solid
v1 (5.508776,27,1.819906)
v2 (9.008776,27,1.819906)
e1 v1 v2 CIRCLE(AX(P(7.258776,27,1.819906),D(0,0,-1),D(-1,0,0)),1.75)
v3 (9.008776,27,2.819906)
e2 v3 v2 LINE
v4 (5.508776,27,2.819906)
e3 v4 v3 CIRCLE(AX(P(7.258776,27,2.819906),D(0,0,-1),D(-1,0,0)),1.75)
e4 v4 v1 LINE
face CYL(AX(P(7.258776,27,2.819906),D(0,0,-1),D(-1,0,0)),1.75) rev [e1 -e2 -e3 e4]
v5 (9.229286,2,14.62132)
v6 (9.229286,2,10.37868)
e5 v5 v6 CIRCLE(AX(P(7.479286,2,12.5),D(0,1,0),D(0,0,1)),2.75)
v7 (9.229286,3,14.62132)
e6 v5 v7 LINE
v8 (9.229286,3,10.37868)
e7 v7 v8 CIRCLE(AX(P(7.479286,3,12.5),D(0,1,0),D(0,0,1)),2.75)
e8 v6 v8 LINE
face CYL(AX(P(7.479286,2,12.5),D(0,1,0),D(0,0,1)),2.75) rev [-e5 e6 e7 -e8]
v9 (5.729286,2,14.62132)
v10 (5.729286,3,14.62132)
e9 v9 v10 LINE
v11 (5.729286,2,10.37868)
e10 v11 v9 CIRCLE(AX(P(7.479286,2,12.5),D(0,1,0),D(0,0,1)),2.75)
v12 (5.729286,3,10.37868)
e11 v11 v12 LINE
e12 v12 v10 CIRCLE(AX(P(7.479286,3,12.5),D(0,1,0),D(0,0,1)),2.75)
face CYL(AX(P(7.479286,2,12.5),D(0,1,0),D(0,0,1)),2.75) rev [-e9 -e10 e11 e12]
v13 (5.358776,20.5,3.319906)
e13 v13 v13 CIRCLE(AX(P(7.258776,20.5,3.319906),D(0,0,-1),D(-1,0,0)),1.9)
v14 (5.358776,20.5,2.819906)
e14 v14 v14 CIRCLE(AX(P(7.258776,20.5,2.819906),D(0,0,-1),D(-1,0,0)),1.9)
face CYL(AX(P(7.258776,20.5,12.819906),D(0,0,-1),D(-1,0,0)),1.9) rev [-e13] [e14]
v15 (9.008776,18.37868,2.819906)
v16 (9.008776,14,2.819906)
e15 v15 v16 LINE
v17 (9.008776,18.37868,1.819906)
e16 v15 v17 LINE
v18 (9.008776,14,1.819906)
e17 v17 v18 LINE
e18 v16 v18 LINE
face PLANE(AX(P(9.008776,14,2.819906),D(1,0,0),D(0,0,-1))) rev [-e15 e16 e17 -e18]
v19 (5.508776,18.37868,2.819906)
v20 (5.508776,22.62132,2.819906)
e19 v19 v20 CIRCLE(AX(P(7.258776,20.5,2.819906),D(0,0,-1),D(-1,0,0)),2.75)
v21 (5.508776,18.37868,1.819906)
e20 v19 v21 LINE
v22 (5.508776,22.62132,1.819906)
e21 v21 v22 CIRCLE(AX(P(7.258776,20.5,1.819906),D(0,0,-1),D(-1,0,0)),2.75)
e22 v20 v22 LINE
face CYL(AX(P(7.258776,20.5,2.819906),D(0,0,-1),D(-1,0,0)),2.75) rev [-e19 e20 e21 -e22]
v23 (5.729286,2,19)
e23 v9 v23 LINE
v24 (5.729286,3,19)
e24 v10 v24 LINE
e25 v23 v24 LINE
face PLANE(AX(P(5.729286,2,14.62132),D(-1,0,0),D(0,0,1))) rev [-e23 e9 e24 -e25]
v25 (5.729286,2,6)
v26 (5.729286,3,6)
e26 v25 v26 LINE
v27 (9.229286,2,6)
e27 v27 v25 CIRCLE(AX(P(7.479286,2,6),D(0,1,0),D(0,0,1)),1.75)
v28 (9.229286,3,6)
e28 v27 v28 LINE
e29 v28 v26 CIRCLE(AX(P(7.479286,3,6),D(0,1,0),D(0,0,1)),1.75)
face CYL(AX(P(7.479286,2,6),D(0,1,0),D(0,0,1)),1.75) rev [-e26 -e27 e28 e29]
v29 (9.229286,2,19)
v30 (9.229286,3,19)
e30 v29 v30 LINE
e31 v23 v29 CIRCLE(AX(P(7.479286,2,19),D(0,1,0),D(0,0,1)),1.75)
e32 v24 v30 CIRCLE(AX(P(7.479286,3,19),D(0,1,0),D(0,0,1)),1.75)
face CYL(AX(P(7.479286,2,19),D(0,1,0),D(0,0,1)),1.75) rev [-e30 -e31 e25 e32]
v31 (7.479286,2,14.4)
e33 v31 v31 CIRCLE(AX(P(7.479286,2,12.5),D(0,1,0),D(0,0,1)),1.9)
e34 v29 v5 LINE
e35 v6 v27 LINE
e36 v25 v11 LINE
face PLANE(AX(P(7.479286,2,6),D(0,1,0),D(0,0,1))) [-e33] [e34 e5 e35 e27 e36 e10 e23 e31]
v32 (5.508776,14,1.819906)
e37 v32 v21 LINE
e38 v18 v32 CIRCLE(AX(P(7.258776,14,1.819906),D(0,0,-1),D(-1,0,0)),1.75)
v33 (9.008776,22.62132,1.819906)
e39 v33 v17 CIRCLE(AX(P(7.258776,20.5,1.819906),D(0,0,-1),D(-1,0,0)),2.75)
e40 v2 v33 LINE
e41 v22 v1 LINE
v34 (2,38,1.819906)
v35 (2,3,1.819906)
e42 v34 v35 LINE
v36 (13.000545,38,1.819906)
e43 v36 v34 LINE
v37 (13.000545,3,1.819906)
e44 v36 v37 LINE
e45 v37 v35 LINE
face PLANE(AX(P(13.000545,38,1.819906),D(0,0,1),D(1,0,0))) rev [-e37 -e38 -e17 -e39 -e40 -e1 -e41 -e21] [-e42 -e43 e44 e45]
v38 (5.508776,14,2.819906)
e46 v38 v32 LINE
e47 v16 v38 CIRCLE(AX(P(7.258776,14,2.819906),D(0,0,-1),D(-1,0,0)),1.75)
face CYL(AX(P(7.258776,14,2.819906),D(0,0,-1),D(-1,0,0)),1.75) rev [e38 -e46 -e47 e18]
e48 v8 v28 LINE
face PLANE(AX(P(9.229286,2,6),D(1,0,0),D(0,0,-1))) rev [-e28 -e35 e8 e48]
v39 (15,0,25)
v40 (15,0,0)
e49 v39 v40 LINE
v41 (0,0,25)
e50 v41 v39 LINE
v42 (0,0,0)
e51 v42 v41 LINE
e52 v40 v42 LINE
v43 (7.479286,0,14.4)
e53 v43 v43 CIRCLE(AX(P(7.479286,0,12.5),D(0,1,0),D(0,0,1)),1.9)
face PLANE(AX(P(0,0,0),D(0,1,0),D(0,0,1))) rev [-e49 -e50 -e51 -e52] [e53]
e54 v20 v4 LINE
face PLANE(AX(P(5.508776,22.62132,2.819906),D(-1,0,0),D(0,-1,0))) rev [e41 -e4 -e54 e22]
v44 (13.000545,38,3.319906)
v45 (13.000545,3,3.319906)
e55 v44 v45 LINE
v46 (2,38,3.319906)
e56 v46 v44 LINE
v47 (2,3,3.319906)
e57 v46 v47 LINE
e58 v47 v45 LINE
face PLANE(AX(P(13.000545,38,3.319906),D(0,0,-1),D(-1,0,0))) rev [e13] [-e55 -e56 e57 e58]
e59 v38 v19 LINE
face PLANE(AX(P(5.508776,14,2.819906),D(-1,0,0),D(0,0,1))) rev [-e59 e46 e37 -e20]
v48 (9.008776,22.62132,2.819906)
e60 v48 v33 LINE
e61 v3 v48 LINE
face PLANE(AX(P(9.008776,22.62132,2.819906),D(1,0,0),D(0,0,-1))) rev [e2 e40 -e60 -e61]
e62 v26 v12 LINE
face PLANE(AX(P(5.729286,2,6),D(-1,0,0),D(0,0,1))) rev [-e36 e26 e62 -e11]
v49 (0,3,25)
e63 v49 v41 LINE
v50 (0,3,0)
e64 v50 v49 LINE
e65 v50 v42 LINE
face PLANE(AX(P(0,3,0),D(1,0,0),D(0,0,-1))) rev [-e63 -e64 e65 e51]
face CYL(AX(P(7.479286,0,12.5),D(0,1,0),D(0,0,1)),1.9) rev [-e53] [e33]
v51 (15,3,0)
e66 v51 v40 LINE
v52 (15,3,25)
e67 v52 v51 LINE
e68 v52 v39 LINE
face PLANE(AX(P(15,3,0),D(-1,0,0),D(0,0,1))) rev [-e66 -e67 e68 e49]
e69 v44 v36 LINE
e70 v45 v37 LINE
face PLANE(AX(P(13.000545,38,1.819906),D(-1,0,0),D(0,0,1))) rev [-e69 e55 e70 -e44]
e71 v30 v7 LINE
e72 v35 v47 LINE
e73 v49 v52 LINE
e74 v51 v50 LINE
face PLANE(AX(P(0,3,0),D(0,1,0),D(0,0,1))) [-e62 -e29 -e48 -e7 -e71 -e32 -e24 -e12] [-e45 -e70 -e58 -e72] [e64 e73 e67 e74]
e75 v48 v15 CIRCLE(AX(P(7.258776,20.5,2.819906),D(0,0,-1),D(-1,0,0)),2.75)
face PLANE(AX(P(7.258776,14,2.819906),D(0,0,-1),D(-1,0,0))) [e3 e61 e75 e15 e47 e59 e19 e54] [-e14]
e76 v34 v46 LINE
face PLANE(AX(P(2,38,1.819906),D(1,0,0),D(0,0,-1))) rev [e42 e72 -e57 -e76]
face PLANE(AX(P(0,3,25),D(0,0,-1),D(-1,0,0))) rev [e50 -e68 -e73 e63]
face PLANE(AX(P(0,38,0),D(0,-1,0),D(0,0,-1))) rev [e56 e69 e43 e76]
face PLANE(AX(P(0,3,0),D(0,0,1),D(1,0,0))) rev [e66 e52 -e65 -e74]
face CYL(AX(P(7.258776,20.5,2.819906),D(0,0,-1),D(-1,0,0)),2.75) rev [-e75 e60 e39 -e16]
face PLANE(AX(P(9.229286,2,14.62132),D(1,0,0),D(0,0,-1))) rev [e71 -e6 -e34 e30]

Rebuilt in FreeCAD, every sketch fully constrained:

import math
import FreeCAD as App
import Part
import Sketcher
from FreeCAD import Vector

doc = App.newDocument("Part")
body = doc.addObject("PartDesign::Body", "Body")

sketch1 = body.newObject("Sketcher::SketchObject", "Sketch")
sketch1.AttachmentSupport = (doc.getObject("XZ_Plane"), [""])
sketch1.MapMode = "FlatFace"
sketch1.addGeometry([
    Part.LineSegment(Vector(0, 0, 0), Vector(0, 25, 0)),
    Part.LineSegment(Vector(0, 25, 0), Vector(15, 25, 0)),
    Part.LineSegment(Vector(15, 25, 0), Vector(15, 0, 0)),
    Part.LineSegment(Vector(15, 0, 0), Vector(0, 0, 0)),
], False)
sketch1.addConstraint([
    Sketcher.Constraint("Coincident", 0, 2, 1, 1),
    Sketcher.Constraint("Coincident", 1, 2, 2, 1),
    Sketcher.Constraint("Coincident", 2, 2, 3, 1),
    Sketcher.Constraint("Coincident", 3, 2, 0, 1),
    Sketcher.Constraint("Vertical", 0),
    Sketcher.Constraint("Horizontal", 1),
    Sketcher.Constraint("Vertical", 2),
    Sketcher.Constraint("Horizontal", 3),
    Sketcher.Constraint("Coincident", 3, 2, -1, 1),
    Sketcher.Constraint("DistanceX", 1, 1, 1, 2, 15.0),
    Sketcher.Constraint("DistanceY", 0, 1, 0, 2, 25.0),
])
pad1 = body.newObject("PartDesign::Pad", "Pad")
pad1.Profile = sketch1
pad1.Length = 3
pad1.Reversed = True

sketch2 = body.newObject("Sketcher::SketchObject", "Sketch001")
sketch2.AttachmentSupport = (doc.getObject("XZ_Plane"), [""])
sketch2.MapMode = "FlatFace"
sketch2.AttachmentOffset = App.Placement(Vector(0, 0, -3), App.Rotation())
sketch2.addGeometry([
    Part.LineSegment(Vector(9.2, 10.4, 0), Vector(9.2, 6, 0)),
    Part.ArcOfCircle(Part.Circle(Vector(7.5, 6, 0), Vector(0, 0, 1), 1.8), math.radians(180), math.radians(360)),
    Part.LineSegment(Vector(5.7, 6, 0), Vector(5.7, 10.4, 0)),
    Part.ArcOfCircle(Part.Circle(Vector(7.5, 12.5, 0), Vector(0, 0, 1), 2.8), math.radians(130), math.radians(230)),
    Part.LineSegment(Vector(5.7, 14.6, 0), Vector(5.7, 19, 0)),
    Part.ArcOfCircle(Part.Circle(Vector(7.5, 19, 0), Vector(0, 0, 1), 1.8), math.radians(0), math.radians(180)),
    Part.LineSegment(Vector(9.2, 19, 0), Vector(9.2, 14.6, 0)),
    Part.ArcOfCircle(Part.Circle(Vector(7.5, 12.5, 0), Vector(0, 0, 1), 2.8), math.radians(-50), math.radians(50)),
], False)
sketch2.addConstraint([
    Sketcher.Constraint("Tangent", 0, 2, 1, 2),
    Sketcher.Constraint("Tangent", 1, 1, 2, 1),
    Sketcher.Constraint("Coincident", 2, 2, 3, 2),
    Sketcher.Constraint("Coincident", 3, 1, 4, 1),
    Sketcher.Constraint("Tangent", 4, 2, 5, 2),
    Sketcher.Constraint("Tangent", 5, 1, 6, 1),
    Sketcher.Constraint("Coincident", 6, 2, 7, 2),
    Sketcher.Constraint("Coincident", 7, 1, 0, 1),
    Sketcher.Constraint("Vertical", 0),
    Sketcher.Constraint("Vertical", 2),
    Sketcher.Constraint("Vertical", 4),
    Sketcher.Constraint("Vertical", 6),
    Sketcher.Constraint("Coincident", 7, 3, 3, 3),
    Sketcher.Constraint("Equal", 1, 5),
    Sketcher.Constraint("Equal", 3, 7),
    Sketcher.Constraint("Horizontal", 3, 1, 6, 2),
    Sketcher.Constraint("Horizontal", 2, 2, 7, 1),
    Sketcher.Constraint("Equal", 2, 4),
    Sketcher.Constraint("Radius", 1, 1.75),
    Sketcher.Constraint("Radius", 3, 2.75),
    Sketcher.Constraint("DistanceY", -1, 1, 1, 3, 6.0),
    Sketcher.Constraint("DistanceY", -1, 1, 5, 3, 19.0),
    Sketcher.Constraint("DistanceX", -1, 1, 1, 3, 7.479286),
])
pocket1 = body.newObject("PartDesign::Pocket", "Pocket")
pocket1.Profile = sketch2
pocket1.Length = 1
pocket1.Reversed = True

sketch3 = body.newObject("Sketcher::SketchObject", "Sketch002")
sketch3.AttachmentSupport = (doc.getObject("XZ_Plane"), [""])
sketch3.MapMode = "FlatFace"
sketch3.AttachmentOffset = App.Placement(Vector(0, 0, -2), App.Rotation())
sketch3.addGeometry(Part.Circle(Vector(7.5, 12.5, 0), Vector(0, 0, 1), 1.9), False)
sketch3.addConstraint([
    Sketcher.Constraint("Diameter", 0, 3.8),
    Sketcher.Constraint("DistanceY", -1, 1, 0, 3, 12.5),
    Sketcher.Constraint("DistanceX", -1, 1, 0, 3, 7.479286),
])
pocket2 = body.newObject("PartDesign::Pocket", "Pocket001")
pocket2.Profile = sketch3
pocket2.Type = "ThroughAll"
pocket2.Reversed = True

sketch4 = body.newObject("Sketcher::SketchObject", "Sketch003")
sketch4.AttachmentSupport = (doc.getObject("XZ_Plane"), [""])
sketch4.MapMode = "FlatFace"
sketch4.AttachmentOffset = App.Placement(Vector(0, 0, -3), App.Rotation())
sketch4.addGeometry([
    Part.LineSegment(Vector(2, 1.8, 0), Vector(2, 3.3, 0)),
    Part.LineSegment(Vector(2, 3.3, 0), Vector(13, 3.3, 0)),
    Part.LineSegment(Vector(13, 3.3, 0), Vector(13, 1.8, 0)),
    Part.LineSegment(Vector(13, 1.8, 0), Vector(2, 1.8, 0)),
], False)
sketch4.addConstraint([
    Sketcher.Constraint("Coincident", 0, 2, 1, 1),
    Sketcher.Constraint("Coincident", 1, 2, 2, 1),
    Sketcher.Constraint("Coincident", 2, 2, 3, 1),
    Sketcher.Constraint("Coincident", 3, 2, 0, 1),
    Sketcher.Constraint("Vertical", 0),
    Sketcher.Constraint("Horizontal", 1),
    Sketcher.Constraint("Vertical", 2),
    Sketcher.Constraint("Horizontal", 3),
    Sketcher.Constraint("DistanceY", 0, 1, 0, 2, 1.5),
    Sketcher.Constraint("DistanceX", -1, 1, 0, 2, 2.0),
    Sketcher.Constraint("DistanceX", 1, 1, 1, 2, 11.000545),
    Sketcher.Constraint("DistanceY", -1, 1, 0, 2, 3.319906),
])
pad2 = body.newObject("PartDesign::Pad", "Pad001")
pad2.Profile = sketch4
pad2.Length = 35
pad2.Reversed = True

sketch5 = body.newObject("Sketcher::SketchObject", "Sketch004")
sketch5.AttachmentSupport = (doc.getObject("XY_Plane"), [""])
sketch5.MapMode = "FlatFace"
sketch5.AttachmentOffset = App.Placement(Vector(0, 0, 1.819906), App.Rotation())
sketch5.addGeometry([
    Part.LineSegment(Vector(9, 18.4, 0), Vector(9, 14, 0)),
    Part.ArcOfCircle(Part.Circle(Vector(7.3, 14, 0), Vector(0, 0, 1), 1.8), math.radians(180), math.radians(360)),
    Part.LineSegment(Vector(5.5, 14, 0), Vector(5.5, 18.4, 0)),
    Part.ArcOfCircle(Part.Circle(Vector(7.3, 20.5, 0), Vector(0, 0, 1), 2.8), math.radians(130), math.radians(230)),
    Part.LineSegment(Vector(5.5, 22.6, 0), Vector(5.5, 27, 0)),
    Part.ArcOfCircle(Part.Circle(Vector(7.3, 27, 0), Vector(0, 0, 1), 1.8), math.radians(0), math.radians(180)),
    Part.LineSegment(Vector(9, 27, 0), Vector(9, 22.6, 0)),
    Part.ArcOfCircle(Part.Circle(Vector(7.3, 20.5, 0), Vector(0, 0, 1), 2.8), math.radians(-50), math.radians(50)),
], False)
sketch5.addConstraint([
    Sketcher.Constraint("Tangent", 0, 2, 1, 2),
    Sketcher.Constraint("Tangent", 1, 1, 2, 1),
    Sketcher.Constraint("Coincident", 2, 2, 3, 2),
    Sketcher.Constraint("Coincident", 3, 1, 4, 1),
    Sketcher.Constraint("Tangent", 4, 2, 5, 2),
    Sketcher.Constraint("Tangent", 5, 1, 6, 1),
    Sketcher.Constraint("Coincident", 6, 2, 7, 2),
    Sketcher.Constraint("Coincident", 7, 1, 0, 1),
    Sketcher.Constraint("Vertical", 0),
    Sketcher.Constraint("Vertical", 2),
    Sketcher.Constraint("Vertical", 4),
    Sketcher.Constraint("Vertical", 6),
    Sketcher.Constraint("Coincident", 7, 3, 3, 3),
    Sketcher.Constraint("Equal", 1, 5),
    Sketcher.Constraint("Equal", 3, 7),
    Sketcher.Constraint("Horizontal", 3, 1, 6, 2),
    Sketcher.Constraint("Horizontal", 2, 2, 7, 1),
    Sketcher.Constraint("Equal", 2, 4),
    Sketcher.Constraint("Radius", 1, 1.75),
    Sketcher.Constraint("Radius", 3, 2.75),
    Sketcher.Constraint("DistanceY", -1, 1, 1, 3, 14.0),
    Sketcher.Constraint("DistanceY", -1, 1, 5, 3, 27.0),
    Sketcher.Constraint("DistanceX", -1, 1, 1, 3, 7.258776),
])
pocket3 = body.newObject("PartDesign::Pocket", "Pocket002")
pocket3.Profile = sketch5
pocket3.Length = 1
pocket3.Reversed = True

sketch6 = body.newObject("Sketcher::SketchObject", "Sketch005")
sketch6.AttachmentSupport = (doc.getObject("XY_Plane"), [""])
sketch6.MapMode = "FlatFace"
sketch6.AttachmentOffset = App.Placement(Vector(0, 0, 2.819906), App.Rotation())
sketch6.addGeometry(Part.Circle(Vector(7.3, 20.5, 0), Vector(0, 0, 1), 1.9), False)
sketch6.addConstraint([
    Sketcher.Constraint("Diameter", 0, 3.8),
    Sketcher.Constraint("DistanceY", -1, 1, 0, 3, 20.5),
    Sketcher.Constraint("DistanceX", -1, 1, 0, 3, 7.258776),
])
pocket4 = body.newObject("PartDesign::Pocket", "Pocket003")
pocket4.Profile = sketch6
pocket4.Length = 10
pocket4.Reversed = True

doc.recompute()
